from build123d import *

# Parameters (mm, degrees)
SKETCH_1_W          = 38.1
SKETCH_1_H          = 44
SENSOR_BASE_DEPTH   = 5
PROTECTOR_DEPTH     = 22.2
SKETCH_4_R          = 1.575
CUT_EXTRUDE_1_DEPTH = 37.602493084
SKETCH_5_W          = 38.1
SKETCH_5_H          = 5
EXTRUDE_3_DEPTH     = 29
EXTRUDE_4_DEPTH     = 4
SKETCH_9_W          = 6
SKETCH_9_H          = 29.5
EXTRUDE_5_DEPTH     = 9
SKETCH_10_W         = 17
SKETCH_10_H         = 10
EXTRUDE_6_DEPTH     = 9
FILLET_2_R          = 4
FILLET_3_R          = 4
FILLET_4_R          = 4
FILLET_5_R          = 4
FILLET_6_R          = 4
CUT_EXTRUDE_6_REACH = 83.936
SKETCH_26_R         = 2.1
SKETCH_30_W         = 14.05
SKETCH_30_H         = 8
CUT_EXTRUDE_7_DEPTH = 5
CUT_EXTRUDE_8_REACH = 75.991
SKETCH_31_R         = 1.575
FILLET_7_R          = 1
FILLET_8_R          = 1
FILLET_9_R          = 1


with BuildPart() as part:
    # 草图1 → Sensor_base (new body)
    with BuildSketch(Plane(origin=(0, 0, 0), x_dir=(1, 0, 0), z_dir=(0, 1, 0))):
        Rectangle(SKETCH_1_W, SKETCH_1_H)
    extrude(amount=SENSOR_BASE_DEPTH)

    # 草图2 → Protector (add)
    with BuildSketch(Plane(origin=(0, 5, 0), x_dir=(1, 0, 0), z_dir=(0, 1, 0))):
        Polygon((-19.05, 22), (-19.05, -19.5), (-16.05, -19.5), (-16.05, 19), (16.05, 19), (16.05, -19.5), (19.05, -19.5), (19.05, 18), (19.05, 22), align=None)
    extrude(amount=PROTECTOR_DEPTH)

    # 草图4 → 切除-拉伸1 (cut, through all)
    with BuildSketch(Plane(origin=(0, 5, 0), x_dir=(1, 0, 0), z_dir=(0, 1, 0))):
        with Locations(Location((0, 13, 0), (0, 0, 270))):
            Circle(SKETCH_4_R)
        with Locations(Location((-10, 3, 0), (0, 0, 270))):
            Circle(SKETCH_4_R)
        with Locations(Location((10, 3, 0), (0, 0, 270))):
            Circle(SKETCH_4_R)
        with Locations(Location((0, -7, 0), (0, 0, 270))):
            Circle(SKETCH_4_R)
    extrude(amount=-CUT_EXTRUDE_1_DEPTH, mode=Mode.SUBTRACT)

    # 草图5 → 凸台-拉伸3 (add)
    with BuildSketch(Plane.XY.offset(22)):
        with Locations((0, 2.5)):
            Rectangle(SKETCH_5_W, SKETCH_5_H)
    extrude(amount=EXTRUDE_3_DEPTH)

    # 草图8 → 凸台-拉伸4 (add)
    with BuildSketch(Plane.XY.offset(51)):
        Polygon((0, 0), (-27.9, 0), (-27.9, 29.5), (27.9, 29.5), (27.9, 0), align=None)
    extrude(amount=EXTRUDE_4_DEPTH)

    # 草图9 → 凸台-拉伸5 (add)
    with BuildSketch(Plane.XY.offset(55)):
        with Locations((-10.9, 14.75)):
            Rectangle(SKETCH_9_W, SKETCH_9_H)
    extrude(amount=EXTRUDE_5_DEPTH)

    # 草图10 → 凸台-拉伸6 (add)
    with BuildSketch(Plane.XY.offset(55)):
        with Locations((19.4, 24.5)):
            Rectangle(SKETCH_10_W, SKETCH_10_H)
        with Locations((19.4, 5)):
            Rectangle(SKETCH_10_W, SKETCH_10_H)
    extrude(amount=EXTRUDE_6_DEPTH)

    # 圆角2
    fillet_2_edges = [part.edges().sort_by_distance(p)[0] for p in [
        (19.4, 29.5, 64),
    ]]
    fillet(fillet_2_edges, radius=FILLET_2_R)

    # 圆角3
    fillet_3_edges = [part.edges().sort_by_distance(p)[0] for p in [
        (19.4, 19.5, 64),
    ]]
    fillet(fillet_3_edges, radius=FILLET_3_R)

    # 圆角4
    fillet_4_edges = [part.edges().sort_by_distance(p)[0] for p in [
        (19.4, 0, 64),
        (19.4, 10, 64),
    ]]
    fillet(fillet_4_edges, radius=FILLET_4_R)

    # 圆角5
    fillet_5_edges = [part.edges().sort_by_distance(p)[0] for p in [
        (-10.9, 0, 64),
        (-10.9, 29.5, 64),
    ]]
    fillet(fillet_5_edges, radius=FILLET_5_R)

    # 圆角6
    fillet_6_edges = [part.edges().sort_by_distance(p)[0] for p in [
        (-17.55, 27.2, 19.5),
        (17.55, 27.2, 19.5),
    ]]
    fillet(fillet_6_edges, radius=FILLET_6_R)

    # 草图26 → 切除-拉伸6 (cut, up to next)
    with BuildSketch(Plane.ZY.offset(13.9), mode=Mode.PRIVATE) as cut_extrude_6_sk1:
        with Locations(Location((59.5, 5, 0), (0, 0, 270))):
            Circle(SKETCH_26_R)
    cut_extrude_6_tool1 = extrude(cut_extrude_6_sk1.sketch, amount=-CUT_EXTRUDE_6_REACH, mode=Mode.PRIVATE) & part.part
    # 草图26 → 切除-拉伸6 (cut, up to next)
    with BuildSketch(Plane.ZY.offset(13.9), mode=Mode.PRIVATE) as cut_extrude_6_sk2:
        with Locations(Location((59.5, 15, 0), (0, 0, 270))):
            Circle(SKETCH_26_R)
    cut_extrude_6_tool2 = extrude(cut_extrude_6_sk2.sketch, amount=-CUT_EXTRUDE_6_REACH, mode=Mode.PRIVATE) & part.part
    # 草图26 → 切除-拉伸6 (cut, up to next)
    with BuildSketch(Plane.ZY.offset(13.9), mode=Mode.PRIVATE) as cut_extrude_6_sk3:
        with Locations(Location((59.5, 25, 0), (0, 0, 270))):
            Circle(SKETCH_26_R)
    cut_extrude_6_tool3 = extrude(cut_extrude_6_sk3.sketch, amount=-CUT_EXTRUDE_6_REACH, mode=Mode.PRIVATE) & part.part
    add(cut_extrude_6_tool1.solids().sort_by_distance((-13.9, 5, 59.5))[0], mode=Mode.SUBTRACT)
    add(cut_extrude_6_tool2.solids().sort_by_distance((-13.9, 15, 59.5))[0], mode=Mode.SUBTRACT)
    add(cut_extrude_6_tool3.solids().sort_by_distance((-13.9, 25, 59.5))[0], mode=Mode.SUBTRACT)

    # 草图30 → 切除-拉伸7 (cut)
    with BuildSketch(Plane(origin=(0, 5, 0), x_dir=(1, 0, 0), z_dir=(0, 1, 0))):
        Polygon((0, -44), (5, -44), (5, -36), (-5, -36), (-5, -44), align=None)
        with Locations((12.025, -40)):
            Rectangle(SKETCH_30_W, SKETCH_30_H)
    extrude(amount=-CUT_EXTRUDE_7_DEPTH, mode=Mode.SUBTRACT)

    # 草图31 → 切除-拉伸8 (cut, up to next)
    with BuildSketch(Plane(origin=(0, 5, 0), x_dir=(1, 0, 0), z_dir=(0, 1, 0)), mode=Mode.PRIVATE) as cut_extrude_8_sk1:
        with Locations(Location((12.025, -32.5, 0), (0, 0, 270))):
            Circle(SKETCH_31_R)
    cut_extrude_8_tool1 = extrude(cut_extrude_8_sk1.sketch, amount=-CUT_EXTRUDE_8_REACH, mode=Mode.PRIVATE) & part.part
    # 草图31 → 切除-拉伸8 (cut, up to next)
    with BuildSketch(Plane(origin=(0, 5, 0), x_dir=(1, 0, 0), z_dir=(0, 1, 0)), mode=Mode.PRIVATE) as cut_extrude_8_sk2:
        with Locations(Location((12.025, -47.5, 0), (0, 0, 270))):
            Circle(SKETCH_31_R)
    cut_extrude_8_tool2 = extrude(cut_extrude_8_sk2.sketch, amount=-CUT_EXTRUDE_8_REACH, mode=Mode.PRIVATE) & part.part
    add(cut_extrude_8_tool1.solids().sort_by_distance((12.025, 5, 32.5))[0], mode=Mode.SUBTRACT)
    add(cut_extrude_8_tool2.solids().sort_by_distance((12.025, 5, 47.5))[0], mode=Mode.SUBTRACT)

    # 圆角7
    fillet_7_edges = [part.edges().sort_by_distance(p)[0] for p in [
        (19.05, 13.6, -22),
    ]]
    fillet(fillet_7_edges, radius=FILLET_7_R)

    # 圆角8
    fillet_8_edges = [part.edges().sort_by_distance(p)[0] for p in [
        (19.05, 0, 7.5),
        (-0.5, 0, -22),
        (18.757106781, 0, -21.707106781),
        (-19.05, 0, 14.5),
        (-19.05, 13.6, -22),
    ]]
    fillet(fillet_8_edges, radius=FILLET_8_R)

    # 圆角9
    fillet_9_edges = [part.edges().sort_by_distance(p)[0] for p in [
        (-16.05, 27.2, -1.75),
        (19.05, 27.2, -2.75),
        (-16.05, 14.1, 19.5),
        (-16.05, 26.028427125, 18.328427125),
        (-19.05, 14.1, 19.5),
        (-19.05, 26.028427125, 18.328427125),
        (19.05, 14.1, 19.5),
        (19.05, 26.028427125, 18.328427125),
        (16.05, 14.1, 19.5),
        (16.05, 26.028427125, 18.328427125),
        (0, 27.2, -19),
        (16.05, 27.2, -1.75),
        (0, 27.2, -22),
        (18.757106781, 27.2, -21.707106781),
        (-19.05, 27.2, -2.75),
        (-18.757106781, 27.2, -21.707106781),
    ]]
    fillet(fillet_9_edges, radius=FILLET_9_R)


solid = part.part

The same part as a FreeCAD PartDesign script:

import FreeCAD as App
import Part
import Sketcher
from FreeCAD import Vector


def edges_at(feature, points):
    """Names of the edges that pass closest to the given points."""
    edges = feature.Shape.Edges
    near = lambda p: min(range(len(edges)), key=lambda i: edges[i].distToShape(Part.Vertex(*p))[0])
    return sorted({f"Edge{near(p) + 1}" for p in points})


def add_polygon(sketch, points):
    """Adds a closed chain of lines whose ends are joined by coincident constraints."""
    first, n = sketch.GeometryCount, len(points)
    for a, b in zip(points, points[1:] + points[:1]):
        sketch.addGeometry(Part.LineSegment(App.Vector(*a, 0), App.Vector(*b, 0)), False)
    for i in range(n):
        sketch.addConstraint(Sketcher.Constraint("Coincident", first + i, 2, first + (i + 1) % n, 1))

doc = App.newDocument("Part")
body = doc.addObject("PartDesign::Body", "Body")

# Sketch on XZ plane
sketch1 = body.newObject("Sketcher::SketchObject", "Sketch")
sketch1.AttachmentSupport = (doc.getObject("XZ_Plane"), [""])
sketch1.MapMode = "FlatFace"
add_polygon(sketch1, [(-19, -22), (-19, 22), (19, 22), (19, -22)])  # lines 0-3
sketch1.addConstraint([
    Sketcher.Constraint("Vertical", 0),
    Sketcher.Constraint("Horizontal", 1),
    Sketcher.Constraint("Vertical", 2),
    Sketcher.Constraint("Horizontal", 3),
    Sketcher.Constraint("Symmetric", 0, 2, 2, 2, -1, 1),
    Sketcher.Constraint("DistanceY", 0, 1, 0, 2, 44.0),
    Sketcher.Constraint("DistanceX", 1, 1, 1, 2, 38.1),
])
pad1 = body.newObject("PartDesign::Pad", "Pad")
pad1.Profile = sketch1
pad1.Length = 5
pad1.Reversed = True

# Sketch on XZ plane
sketch2 = body.newObject("Sketcher::SketchObject", "Sketch001")
sketch2.AttachmentSupport = (doc.getObject("XZ_Plane"), [""])
sketch2.MapMode = "FlatFace"
sketch2.AttachmentOffset = App.Placement(Vector(0, 0, -5), App.Rotation())
add_polygon(sketch2, [(-19.1, -22), (-19.1, 19.5), (-16.1, 19.5), (-16.1, -19), (16.1, -19), (16.1, 19.5), (19.1, 19.5), (19.1, -22)])  # lines 0-7
sketch2.addConstraint([
    Sketcher.Constraint("Vertical", 0),
    Sketcher.Constraint("Horizontal", 1),
    Sketcher.Constraint("Vertical", 2),
    Sketcher.Constraint("Horizontal", 3),
    Sketcher.Constraint("Vertical", 4),
    Sketcher.Constraint("Horizontal", 5),
    Sketcher.Constraint("Vertical", 6),
    Sketcher.Constraint("Horizontal", 7),
    Sketcher.Constraint("Symmetric", 1, 2, 4, 2, -2),
    Sketcher.Constraint("Equal", 1, 5),
    Sketcher.Constraint("DistanceX", 1, 1, 1, 2, 3.0),
    Sketcher.Constraint("DistanceX", 3, 1, 3, 2, 32.1),
    Sketcher.Constraint("DistanceY", 0, 1, 0, 2, 41.5),
    Sketcher.Constraint("DistanceY", 2, 2, 2, 1, 38.5),
    Sketcher.Constraint("DistanceY", 2, 2, -1, 1, 19.0),
])
pad2 = body.newObject("PartDesign::Pad", "Pad001")
pad2.Profile = sketch2
pad2.Length = 22.2
pad2.Reversed = True

# Sketch on XZ plane
sketch3 = body.newObject("Sketcher::SketchObject", "Sketch002")
sketch3.AttachmentSupport = (doc.getObject("XZ_Plane"), [""])
sketch3.MapMode = "FlatFace"
sketch3.AttachmentOffset = App.Placement(Vector(0, 0, -5), App.Rotation())
sketch3.addGeometry([
    Part.Circle(Vector(0, -13, 0), Vector(0, 0, 1), 1.6),
    Part.Circle(Vector(-10, -3, 0), Vector(0, 0, 1), 1.6),
    Part.Circle(Vector(10, -3, 0), Vector(0, 0, 1), 1.6),
    Part.Circle(Vector(0, 7, 0), Vector(0, 0, 1), 1.6),
], False)
sketch3.addConstraint([
    Sketcher.Constraint("Equal", 0, 1),
    Sketcher.Constraint("Equal", 1, 2),
    Sketcher.Constraint("Equal", 2, 3),
    Sketcher.Constraint("Symmetric", 1, 3, 2, 3, -2),
    Sketcher.Constraint("PointOnObject", 0, 3, -2),
    Sketcher.Constraint("PointOnObject", 3, 3, -2),
    Sketcher.Constraint("Diameter", 0, 3.15),
    Sketcher.Constraint("DistanceY", 0, 3, -1, 1, 13.0),
    Sketcher.Constraint("DistanceX", 1, 3, -1, 1, 10.0),
    Sketcher.Constraint("DistanceY", 1, 3, -1, 1, 3.0),
    Sketcher.Constraint("DistanceY", -1, 1, 3, 3, 7.0),
])
pocket1 = body.newObject("PartDesign::Pocket", "Pocket")
pocket1.Profile = sketch3
pocket1.Type = "ThroughAll"
pocket1.Reversed = True

# Sketch on XY plane
sketch4 = body.newObject("Sketcher::SketchObject", "Sketch003")
sketch4.AttachmentSupport = (doc.getObject("XY_Plane"), [""])
sketch4.MapMode = "FlatFace"
sketch4.AttachmentOffset = App.Placement(Vector(0, 0, 22), App.Rotation())
add_polygon(sketch4, [(-19, 5), (-19, 0), (19, 0), (19, 5)])  # lines 0-3
sketch4.addConstraint([
    Sketcher.Constraint("Vertical", 0),
    Sketcher.Constraint("Horizontal", 1),
    Sketcher.Constraint("Vertical", 2),
    Sketcher.Constraint("Horizontal", 3),
    Sketcher.Constraint("Symmetric", 0, 2, 1, 2, -1, 1),
    Sketcher.Constraint("DistanceY", 0, 2, 0, 1, 5.0),
    Sketcher.Constraint("DistanceX", 1, 1, 1, 2, 38.1),
])
pad3 = body.newObject("PartDesign::Pad", "Pad002")
pad3.Profile = sketch4
pad3.Length = 29

# Sketch on XY plane
sketch5 = body.newObject("Sketcher::SketchObject", "Sketch004")
sketch5.AttachmentSupport = (doc.getObject("XY_Plane"), [""])
sketch5.MapMode = "FlatFace"
sketch5.AttachmentOffset = App.Placement(Vector(0, 0, 51), App.Rotation())
add_polygon(sketch5, [(-28, 0), (28, 0), (28, 30), (-28, 30)])  # lines 0-3
sketch5.addConstraint([
    Sketcher.Constraint("Horizontal", 0),
    Sketcher.Constraint("Vertical", 1),
    Sketcher.Constraint("Horizontal", 2),
    Sketcher.Constraint("Vertical", 3),
    Sketcher.Constraint("Symmetric", 0, 2, 3, 2, -1, 1),
    Sketcher.Constraint("DistanceX", 0, 1, 0, 2, 55.8),
    Sketcher.Constraint("DistanceY", 1, 1, 1, 2, 29.5),
])
pad4 = body.newObject("PartDesign::Pad", "Pad003")
pad4.Profile = sketch5
pad4.Length = 4

# Sketch on XY plane
sketch6 = body.newObject("Sketcher::SketchObject", "Sketch005")
sketch6.AttachmentSupport = (doc.getObject("XY_Plane"), [""])
sketch6.MapMode = "FlatFace"
sketch6.AttachmentOffset = App.Placement(Vector(0, 0, 55), App.Rotation())
add_polygon(sketch6, [(-14, 30), (-14, 0), (-8, 0), (-8, 30)])  # lines 0-3
sketch6.addConstraint([
    Sketcher.Constraint("Vertical", 0),
    Sketcher.Constraint("Horizontal", 1),
    Sketcher.Constraint("Vertical", 2),
    Sketcher.Constraint("Horizontal", 3),
    Sketcher.Constraint("PointOnObject", 0, 2, -1),
    Sketcher.Constraint("DistanceX", 1, 1, 1, 2, 6.0),
    Sketcher.Constraint("DistanceY", 0, 2, 0, 1, 29.5),
    Sketcher.Constraint("DistanceX", 0, 2, -1, 1, 13.9),
])
pad5 = body.newObject("PartDesign::Pad", "Pad004")
pad5.Profile = sketch6
pad5.Length = 9

# Sketch on XY plane
sketch7 = body.newObject("Sketcher::SketchObject", "Sketch006")
sketch7.AttachmentSupport = (doc.getObject("XY_Plane"), [""])
sketch7.MapMode = "FlatFace"
sketch7.AttachmentOffset = App.Placement(Vector(0, 0, 55), App.Rotation())
add_polygon(sketch7, [(11, 30), (11, 20), (28, 20), (28, 30)])  # lines 0-3
add_polygon(sketch7, [(11, 10), (11, 0), (28, 0), (28, 10)])  # lines 4-7
sketch7.addConstraint([
    Sketcher.Constraint("Vertical", 0),
    Sketcher.Constraint("Horizontal", 1),
    Sketcher.Constraint("Vertical", 2),
    Sketcher.Constraint("Horizontal", 3),
    Sketcher.Constraint("Vertical", 4),
    Sketcher.Constraint("Horizontal", 5),
    Sketcher.Constraint("Vertical", 6),
    Sketcher.Constraint("Horizontal", 7),
    Sketcher.Constraint("PointOnObject", 4, 2, -1),
    Sketcher.Constraint("Vertical", 3, 2, 4, 2),
    Sketcher.Constraint("Vertical", 2, 2, 5, 2),
    Sketcher.Constraint("Equal", 2, 4),
    Sketcher.Constraint("DistanceX", 1, 1, 1, 2, 17.0),
    Sketcher.Constraint("DistanceY", 0, 2, 0, 1, 10.0),
    Sketcher.Constraint("DistanceX", -1, 1, 0, 2, 10.9),
    Sketcher.Constraint("DistanceY", -1, 1, 0, 2, 19.5),
])
pad6 = body.newObject("PartDesign::Pad", "Pad005")
pad6.Profile = sketch7
pad6.Length = 9
doc.recompute()

fillet = body.newObject("PartDesign::Fillet", "Fillet")
fillet.Base = (pad6, edges_at(pad6, [(19.4, 29.5, 64)]))
fillet.Radius = 4
doc.recompute()

fillet2 = body.newObject("PartDesign::Fillet", "Fillet001")
fillet2.Base = (fillet, edges_at(fillet, [(19.4, 19.5, 64)]))
fillet2.Radius = 4
doc.recompute()

fillet3 = body.newObject("PartDesign::Fillet", "Fillet002")
fillet3.Base = (fillet2, edges_at(fillet2, [(19.4, 0, 64), (19.4, 10, 64)]))
fillet3.Radius = 4
doc.recompute()

fillet4 = body.newObject("PartDesign::Fillet", "Fillet003")
fillet4.Base = (fillet3, edges_at(fillet3, [(-10.9, 0, 64), (-10.9, 29.5, 64)]))
fillet4.Radius = 4
doc.recompute()

fillet5 = body.newObject("PartDesign::Fillet", "Fillet004")
fillet5.Base = (fillet4, edges_at(fillet4, [(-17.55, 27.2, 19.5), (17.55, 27.2, 19.5)]))
fillet5.Radius = 4

# Sketch on YZ plane
sketch8 = body.newObject("Sketcher::SketchObject", "Sketch007")
sketch8.AttachmentSupport = (doc.getObject("YZ_Plane"), [""])
sketch8.MapMode = "FlatFace"
sketch8.AttachmentOffset = App.Placement(Vector(0, 0, -13.9), App.Rotation())
sketch8.addGeometry(Part.Circle(Vector(5, 59.5, 0), Vector(0, 0, 1), 2.1), False)
sketch8.addConstraint([
    Sketcher.Constraint("Diameter", 0, 4.2),
    Sketcher.Constraint("DistanceX", -1, 1, 0, 3, 5.0),
    Sketcher.Constraint("DistanceY", -1, 1, 0, 3, 59.5),
])
pocket2 = body.newObject("PartDesign::Pocket", "Pocket001")
pocket2.Profile = sketch8
pocket2.Type = "UpToFirst"
pocket2.Reversed = True

# Sketch on YZ plane
sketch9 = body.newObject("Sketcher::SketchObject", "Sketch008")
sketch9.AttachmentSupport = (doc.getObject("YZ_Plane"), [""])
sketch9.MapMode = "FlatFace"
sketch9.AttachmentOffset = App.Placement(Vector(0, 0, -13.9), App.Rotation())
sketch9.addGeometry(Part.Circle(Vector(15, 59.5, 0), Vector(0, 0, 1), 2.1), False)
sketch9.addConstraint([
    Sketcher.Constraint("Diameter", 0, 4.2),
    Sketcher.Constraint("DistanceX", -1, 1, 0, 3, 15.0),
    Sketcher.Constraint("DistanceY", -1, 1, 0, 3, 59.5),
])
pocket3 = body.newObject("PartDesign::Pocket", "Pocket002")
pocket3.Profile = sketch9
pocket3.Type = "UpToFirst"
pocket3.Reversed = True

# Sketch on YZ plane
sketch10 = body.newObject("Sketcher::SketchObject", "Sketch009")
sketch10.AttachmentSupport = (doc.getObject("YZ_Plane"), [""])
sketch10.MapMode = "FlatFace"
sketch10.AttachmentOffset = App.Placement(Vector(0, 0, -13.9), App.Rotation())
sketch10.addGeometry(Part.Circle(Vector(25, 59.5, 0), Vector(0, 0, 1), 2.1), False)
sketch10.addConstraint([
    Sketcher.Constraint("Diameter", 0, 4.2),
    Sketcher.Constraint("DistanceX", -1, 1, 0, 3, 25.0),
    Sketcher.Constraint("DistanceY", -1, 1, 0, 3, 59.5),
])
pocket4 = body.newObject("PartDesign::Pocket", "Pocket003")
pocket4.Profile = sketch10
pocket4.Type = "UpToFirst"
pocket4.Reversed = True

# Sketch on XZ plane
sketch11 = body.newObject("Sketcher::SketchObject", "Sketch010")
sketch11.AttachmentSupport = (doc.getObject("XZ_Plane"), [""])
sketch11.MapMode = "FlatFace"
sketch11.AttachmentOffset = App.Placement(Vector(0, 0, -5), App.Rotation())
add_polygon(sketch11, [(-5, 36), (-5, 44), (19, 44), (19, 36)])  # lines 0-3
sketch11.addConstraint([
    Sketcher.Constraint("Vertical", 0),
    Sketcher.Constraint("Horizontal", 1),
    Sketcher.Constraint("Vertical", 2),
    Sketcher.Constraint("Horizontal", 3),
    Sketcher.Constraint("DistanceY", 0, 1, 0, 2, 8.0),
    Sketcher.Constraint("DistanceX", 0, 2, -1, 1, 5.0),
    Sketcher.Constraint("DistanceY", -1, 1, 0, 2, 44.0),
    Sketcher.Constraint("DistanceX", 1, 1, 1, 2, 24.05),
])
pocket5 = body.newObject("PartDesign::Pocket", "Pocket004")
pocket5.Profile = sketch11
pocket5.Length = 5
pocket5.Reversed = True

# Sketch on XZ plane
sketch12 = body.newObject("Sketcher::SketchObject", "Sketch011")
sketch12.AttachmentSupport = (doc.getObject("XZ_Plane"), [""])
sketch12.MapMode = "FlatFace"
sketch12.AttachmentOffset = App.Placement(Vector(0, 0, -5), App.Rotation())
sketch12.addGeometry(Part.Circle(Vector(12, 32.5, 0), Vector(0, 0, 1), 1.6), False)
sketch12.addConstraint([
    Sketcher.Constraint("Diameter", 0, 3.15),
    Sketcher.Constraint("DistanceY", -1, 1, 0, 3, 32.5),
    Sketcher.Constraint("DistanceX", -1, 1, 0, 3, 12.025),
])
pocket6 = body.newObject("PartDesign::Pocket", "Pocket005")
pocket6.Profile = sketch12
pocket6.Type = "UpToFirst"
pocket6.Reversed = True

# Sketch on XZ plane
sketch13 = body.newObject("Sketcher::SketchObject", "Sketch012")
sketch13.AttachmentSupport = (doc.getObject("XZ_Plane"), [""])
sketch13.MapMode = "FlatFace"
sketch13.AttachmentOffset = App.Placement(Vector(0, 0, -5), App.Rotation())
sketch13.addGeometry(Part.Circle(Vector(12, 47.5, 0), Vector(0, 0, 1), 1.6), False)
sketch13.addConstraint([
    Sketcher.Constraint("Diameter", 0, 3.15),
    Sketcher.Constraint("DistanceY", -1, 1, 0, 3, 47.5),
    Sketcher.Constraint("DistanceX", -1, 1, 0, 3, 12.025),
])
pocket7 = body.newObject("PartDesign::Pocket", "Pocket006")
pocket7.Profile = sketch13
pocket7.Type = "UpToFirst"
pocket7.Reversed = True
doc.recompute()

fillet6 = body.newObject("PartDesign::Fillet", "Fillet005")
fillet6.Base = (pocket7, edges_at(pocket7, [(19.05, 13.6, -22)]))
fillet6.Radius = 1
doc.recompute()

fillet7 = body.newObject("PartDesign::Fillet", "Fillet006")
fillet7.Base = (fillet6, edges_at(fillet6, [
    (19.05, 0, 7.5),
    (-0.5, 0, -22),
    (18.757, 0, -21.707),
    (-19.05, 0, 14.5),
    (-19.05, 13.6, -22),
]))
fillet7.Radius = 1
doc.recompute()

fillet8 = body.newObject("PartDesign::Fillet", "Fillet007")
fillet8.Base = (fillet7, edges_at(fillet7, [
    (-16.05, 27.2, -1.75),
    (19.05, 27.2, -2.75),
    (-16.05, 14.1, 19.5),
    (-16.05, 26.028, 18.328),
    (-19.05, 14.1, 19.5),
    (-19.05, 26.028, 18.328),
    (19.05, 14.1, 19.5),
    (19.05, 26.028, 18.328),
    (16.05, 14.1, 19.5),
    (16.05, 26.028, 18.328),
    (0, 27.2, -19),
    (16.05, 27.2, -1.75),
    (0, 27.2, -22),
    (18.757, 27.2, -21.707),
    (-19.05, 27.2, -2.75),
    (-18.757, 27.2, -21.707),
]))
fillet8.Radius = 1

doc.recompute()
